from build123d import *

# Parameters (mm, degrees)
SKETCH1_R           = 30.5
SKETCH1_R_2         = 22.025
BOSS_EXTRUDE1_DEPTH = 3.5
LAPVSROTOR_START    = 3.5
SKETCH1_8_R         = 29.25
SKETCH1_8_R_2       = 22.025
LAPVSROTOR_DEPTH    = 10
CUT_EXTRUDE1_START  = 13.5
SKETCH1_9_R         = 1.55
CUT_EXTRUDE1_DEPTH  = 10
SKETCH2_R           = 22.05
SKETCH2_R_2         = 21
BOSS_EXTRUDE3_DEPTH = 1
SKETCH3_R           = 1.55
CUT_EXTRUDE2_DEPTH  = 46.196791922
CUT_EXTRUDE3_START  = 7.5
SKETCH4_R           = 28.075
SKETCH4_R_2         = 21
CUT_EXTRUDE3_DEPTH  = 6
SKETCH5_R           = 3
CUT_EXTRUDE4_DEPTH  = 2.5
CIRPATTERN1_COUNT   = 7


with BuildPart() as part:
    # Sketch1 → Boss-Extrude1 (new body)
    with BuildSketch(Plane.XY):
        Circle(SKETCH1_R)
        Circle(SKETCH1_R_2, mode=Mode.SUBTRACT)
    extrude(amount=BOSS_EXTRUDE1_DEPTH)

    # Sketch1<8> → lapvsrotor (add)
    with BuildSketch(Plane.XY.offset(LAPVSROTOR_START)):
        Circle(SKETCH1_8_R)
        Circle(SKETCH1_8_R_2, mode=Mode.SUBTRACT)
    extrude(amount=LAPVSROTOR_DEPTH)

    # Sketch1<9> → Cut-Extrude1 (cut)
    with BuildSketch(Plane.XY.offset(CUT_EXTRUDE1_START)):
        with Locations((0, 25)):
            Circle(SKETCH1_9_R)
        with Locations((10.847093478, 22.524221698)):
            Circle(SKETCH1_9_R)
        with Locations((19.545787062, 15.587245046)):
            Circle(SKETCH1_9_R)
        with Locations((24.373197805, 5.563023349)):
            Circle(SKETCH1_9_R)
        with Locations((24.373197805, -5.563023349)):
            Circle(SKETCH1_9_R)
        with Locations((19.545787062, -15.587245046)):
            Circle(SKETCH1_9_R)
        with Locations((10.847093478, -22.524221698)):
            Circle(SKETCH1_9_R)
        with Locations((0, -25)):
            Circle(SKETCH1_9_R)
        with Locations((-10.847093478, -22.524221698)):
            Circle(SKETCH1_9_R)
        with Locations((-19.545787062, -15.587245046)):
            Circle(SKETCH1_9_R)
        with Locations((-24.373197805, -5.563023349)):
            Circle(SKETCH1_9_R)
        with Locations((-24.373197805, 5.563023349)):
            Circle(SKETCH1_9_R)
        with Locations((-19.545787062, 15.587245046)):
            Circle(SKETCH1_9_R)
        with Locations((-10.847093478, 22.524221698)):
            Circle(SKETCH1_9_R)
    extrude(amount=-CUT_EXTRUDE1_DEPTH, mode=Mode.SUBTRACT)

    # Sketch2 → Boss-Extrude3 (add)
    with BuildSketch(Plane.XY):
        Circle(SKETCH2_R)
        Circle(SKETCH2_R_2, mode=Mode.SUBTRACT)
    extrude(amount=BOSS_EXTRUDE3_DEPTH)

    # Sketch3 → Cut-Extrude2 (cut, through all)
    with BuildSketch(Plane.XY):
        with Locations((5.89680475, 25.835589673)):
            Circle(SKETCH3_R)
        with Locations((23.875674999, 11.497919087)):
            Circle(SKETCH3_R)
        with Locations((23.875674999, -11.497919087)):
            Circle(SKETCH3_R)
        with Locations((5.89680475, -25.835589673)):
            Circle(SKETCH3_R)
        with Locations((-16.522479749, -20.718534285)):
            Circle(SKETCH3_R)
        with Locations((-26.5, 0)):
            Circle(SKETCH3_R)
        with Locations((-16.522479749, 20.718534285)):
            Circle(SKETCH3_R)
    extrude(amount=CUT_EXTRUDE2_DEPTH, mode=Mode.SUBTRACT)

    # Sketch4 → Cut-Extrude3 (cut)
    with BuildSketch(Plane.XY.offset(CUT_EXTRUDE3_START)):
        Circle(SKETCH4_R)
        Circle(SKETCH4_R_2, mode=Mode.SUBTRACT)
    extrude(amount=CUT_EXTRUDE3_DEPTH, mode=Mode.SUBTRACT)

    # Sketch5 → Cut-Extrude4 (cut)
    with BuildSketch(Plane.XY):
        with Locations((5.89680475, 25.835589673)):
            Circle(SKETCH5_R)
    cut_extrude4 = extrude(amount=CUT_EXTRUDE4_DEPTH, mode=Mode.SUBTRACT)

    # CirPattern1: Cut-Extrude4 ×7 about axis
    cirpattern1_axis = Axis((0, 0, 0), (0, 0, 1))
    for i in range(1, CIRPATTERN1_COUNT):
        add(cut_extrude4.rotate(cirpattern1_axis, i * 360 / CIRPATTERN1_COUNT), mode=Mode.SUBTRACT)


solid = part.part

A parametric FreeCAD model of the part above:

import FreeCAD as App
import Part
import Sketcher

V = App.Vector
Q = App.Units.Quantity

doc = App.newDocument("Part")
params = doc.addObject("Spreadsheet::Sheet", "Params")
for row, (alias, value) in enumerate([
    ("sketch1_diameter", "61 mm"),
    ("sketch1_diameter2", "44.05 mm"),
    ("pad1_length", "3.5 mm"),
    ("sketch2_diameter", "58.5 mm"),
    ("sketch2_diameter2", "44.05 mm"),
    ("pad2_length", "10 mm"),
    ("sketch3_diameter", "3.1 mm"),
    ("pocket1_length", "10 mm"),
    ("sketch4_diameter", "42 mm"),
    ("sketch4_diameter2", "44.1 mm"),
    ("pad3_length", "1 mm"),
    ("sketch5_diameter", "3.1 mm"),
    ("sketch6_diameter", "42 mm"),
    ("sketch6_diameter2", "56.15 mm"),
    ("pocket3_length", "6 mm"),
    ("sketch7_diameter", "6 mm"),
    ("pocket4_length", "2.5 mm"),
], start=1):
    params.set(f"A{row}", alias)
    params.set(f"B{row}", "=" + value)
    params.setAlias(f"B{row}", alias)

body = doc.addObject("PartDesign::Body", "Body")

sketch1 = body.newObject("Sketcher::SketchObject", "Sketch")
sketch1.AttachmentSupport = (doc.getObject("XY_Plane"), [""])
sketch1.MapMode = "FlatFace"
sketch1.addGeometry(Part.Circle(V(0, 0, 0), V(0, 0, 1), 30), False)
sketch1.addGeometry(Part.Circle(V(0, 0, 0), V(0, 0, 1), 22), False)
sketch1.addConstraint(Sketcher.Constraint("Coincident", 0, 3, -1, 1))
sketch1.addConstraint(Sketcher.Constraint("Coincident", 1, 3, -1, 1))
sketch1.addConstraint(Sketcher.Constraint("Diameter", 0, Q("61 mm")))
sketch1.addConstraint(Sketcher.Constraint("Diameter", 1, Q("44.05 mm")))
sketch1.setExpression("Constraints[2]", "Params.sketch1_diameter")
sketch1.setExpression("Constraints[3]", "Params.sketch1_diameter2")
pad1 = body.newObject("PartDesign::Pad", "Pad")
pad1.Profile = sketch1
pad1.setExpression("Length", "Params.pad1_length")

sketch2 = body.newObject("Sketcher::SketchObject", "Sketch001")
sketch2.AttachmentSupport = (doc.getObject("XY_Plane"), [""])
sketch2.MapMode = "FlatFace"
sketch2.AttachmentOffset = App.Placement(V(0, 0, 3.5), App.Rotation())
sketch2.addGeometry(Part.Circle(V(0, 0, 0), V(0, 0, 1), 29), False)
sketch2.addGeometry(Part.Circle(V(0, 0, 0), V(0, 0, 1), 22), False)
sketch2.addConstraint(Sketcher.Constraint("Coincident", 0, 3, -1, 1))
sketch2.addConstraint(Sketcher.Constraint("Coincident", 1, 3, -1, 1))
sketch2.addConstraint(Sketcher.Constraint("Diameter", 0, Q("58.5 mm")))
sketch2.addConstraint(Sketcher.Constraint("Diameter", 1, Q("44.05 mm")))
sketch2.setExpression("Constraints[2]", "Params.sketch2_diameter")
sketch2.setExpression("Constraints[3]", "Params.sketch2_diameter2")
pad2 = body.newObject("PartDesign::Pad", "Pad001")
pad2.Profile = sketch2
pad2.setExpression("Length", "Params.pad2_length")

sketch3 = body.newObject("Sketcher::SketchObject", "Sketch002")
sketch3.AttachmentSupport = (doc.getObject("XY_Plane"), [""])
sketch3.MapMode = "FlatFace"
sketch3.AttachmentOffset = App.Placement(V(0, 0, 13.5), App.Rotation())
sketch3.addGeometry(Part.Circle(V(0, 25, 0), V(0, 0, 1), 1.6), False)
sketch3.addGeometry(Part.Circle(V(10.8, 22.5, 0), V(0, 0, 1), 1.6), False)
sketch3.addGeometry(Part.Circle(V(19.5, 15.6, 0), V(0, 0, 1), 1.6), False)
sketch3.addGeometry(Part.Circle(V(24.4, 5.6, 0), V(0, 0, 1), 1.6), False)
sketch3.addGeometry(Part.Circle(V(24.4, -5.6, 0), V(0, 0, 1), 1.6), False)
sketch3.addGeometry(Part.Circle(V(19.5, -15.6, 0), V(0, 0, 1), 1.6), False)
sketch3.addGeometry(Part.Circle(V(10.8, -22.5, 0), V(0, 0, 1), 1.6), False)
sketch3.addGeometry(Part.Circle(V(0, -25, 0), V(0, 0, 1), 1.6), False)
sketch3.addGeometry(Part.Circle(V(-10.8, -22.5, 0), V(0, 0, 1), 1.6), False)
sketch3.addGeometry(Part.Circle(V(-19.5, -15.6, 0), V(0, 0, 1), 1.6), False)
sketch3.addGeometry(Part.Circle(V(-24.4, -5.6, 0), V(0, 0, 1), 1.6), False)
sketch3.addGeometry(Part.Circle(V(-24.4, 5.6, 0), V(0, 0, 1), 1.6), False)
sketch3.addGeometry(Part.Circle(V(-19.5, 15.6, 0), V(0, 0, 1), 1.6), False)
sketch3.addGeometry(Part.Circle(V(-10.8, 22.5, 0), V(0, 0, 1), 1.6), False)
sketch3.addConstraint(Sketcher.Constraint("Equal", 0, 1))
sketch3.addConstraint(Sketcher.Constraint("Equal", 1, 2))
sketch3.addConstraint(Sketcher.Constraint("Equal", 2, 3))
sketch3.addConstraint(Sketcher.Constraint("Equal", 3, 4))
sketch3.addConstraint(Sketcher.Constraint("Equal", 4, 5))
sketch3.addConstraint(Sketcher.Constraint("Equal", 5, 6))
sketch3.addConstraint(Sketcher.Constraint("Equal", 6, 7))
sketch3.addConstraint(Sketcher.Constraint("Equal", 7, 8))
sketch3.addConstraint(Sketcher.Constraint("Equal", 8, 9))
sketch3.addConstraint(Sketcher.Constraint("Equal", 9, 10))
sketch3.addConstraint(Sketcher.Constraint("Equal", 10, 11))
sketch3.addConstraint(Sketcher.Constraint("Equal", 11, 12))
sketch3.addConstraint(Sketcher.Constraint("Equal", 12, 13))
sketch3.addConstraint(Sketcher.Constraint("Symmetric", 0, 3, 7, 3, -1, 1))
sketch3.addConstraint(Sketcher.Constraint("Symmetric", 1, 3, 8, 3, -1, 1))
sketch3.addConstraint(Sketcher.Constraint("Symmetric", 2, 3, 9, 3, -1, 1))
sketch3.addConstraint(Sketcher.Constraint("Symmetric", 3, 3, 10, 3, -1, 1))
sketch3.addConstraint(Sketcher.Constraint("Symmetric", 4, 3, 11, 3, -1, 1))
sketch3.addConstraint(Sketcher.Constraint("Symmetric", 5, 3, 12, 3, -1, 1))
sketch3.addConstraint(Sketcher.Constraint("Symmetric", 6, 3, 13, 3, -1, 1))
sketch3.addConstraint(Sketcher.Constraint("Symmetric", 6, 3, 8, 3, -2))
sketch3.addConstraint(Sketcher.Constraint("Symmetric", 5, 3, 9, 3, -2))
sketch3.addConstraint(Sketcher.Constraint("Symmetric", 4, 3, 10, 3, -2))
sketch3.addConstraint(Sketcher.Constraint("PointOnObject", 0, 3, -2))
sketch3.addConstraint(Sketcher.Constraint("Diameter", 0, Q("3.1 mm")))
sketch3.addConstraint(Sketcher.Constraint("DistanceY", -1, 1, 0, 3, Q("25 mm")))
sketch3.addConstraint(Sketcher.Constraint("DistanceY", 3, 3, 1, 3, Q("16.961198 mm")))
sketch3.addConstraint(Sketcher.Constraint("DistanceY", -1, 1, 1, 3, Q("22.524222 mm")))
sketch3.addConstraint(Sketcher.Constraint("DistanceX", 2, 3, 3, 3, Q("4.827411 mm")))
sketch3.addConstraint(Sketcher.Constraint("DistanceY", 3, 3, 2, 3, Q("10.024222 mm")))
sketch3.addConstraint(Sketcher.Constraint("DistanceX", 8, 3, 5, 3, Q("30.392881 mm")))
sketch3.addConstraint(Sketcher.Constraint("DistanceX", -1, 1, 1, 3, Q("10.847093 mm")))
sketch3.setExpression("Constraints[24]", "Params.sketch3_diameter")
pocket1 = body.newObject("PartDesign::Pocket", "Pocket")
pocket1.Profile = sketch3
pocket1.setExpression("Length", "Params.pocket1_length")

sketch4 = body.newObject("Sketcher::SketchObject", "Sketch003")
sketch4.AttachmentSupport = (doc.getObject("XY_Plane"), [""])
sketch4.MapMode = "FlatFace"
sketch4.addGeometry(Part.Circle(V(0, 0, 0), V(0, 0, 1), 22), False)
sketch4.addGeometry(Part.Circle(V(0, 0, 0), V(0, 0, 1), 21), False)
sketch4.addConstraint(Sketcher.Constraint("Coincident", 0, 3, -1, 1))
sketch4.addConstraint(Sketcher.Constraint("Coincident", 1, 3, -1, 1))
sketch4.addConstraint(Sketcher.Constraint("Diameter", 1, Q("42 mm")))
sketch4.addConstraint(Sketcher.Constraint("Diameter", 0, Q("44.1 mm")))
sketch4.setExpression("Constraints[2]", "Params.sketch4_diameter")
sketch4.setExpression("Constraints[3]", "Params.sketch4_diameter2")
pad3 = body.newObject("PartDesign::Pad", "Pad002")
pad3.Profile = sketch4
pad3.setExpression("Length", "Params.pad3_length")

sketch5 = body.newObject("Sketcher::SketchObject", "Sketch004")
sketch5.AttachmentSupport = (doc.getObject("XY_Plane"), [""])
sketch5.MapMode = "FlatFace"
sketch5.addGeometry(Part.Circle(V(5.9, 25.8, 0), V(0, 0, 1), 1.6), False)
sketch5.addGeometry(Part.Circle(V(23.9, 11.5, 0), V(0, 0, 1), 1.6), False)
sketch5.addGeometry(Part.Circle(V(23.9, -11.5, 0), V(0, 0, 1), 1.6), False)
sketch5.addGeometry(Part.Circle(V(5.9, -25.8, 0), V(0, 0, 1), 1.6), False)
sketch5.addGeometry(Part.Circle(V(-16.5, -20.7, 0), V(0, 0, 1), 1.6), False)
sketch5.addGeometry(Part.Circle(V(-26.5, 0, 0), V(0, 0, 1), 1.6), False)
sketch5.addGeometry(Part.Circle(V(-16.5, 20.7, 0), V(0, 0, 1), 1.6), False)
sketch5.addConstraint(Sketcher.Constraint("Equal", 0, 1))
sketch5.addConstraint(Sketcher.Constraint("Equal", 1, 2))
sketch5.addConstraint(Sketcher.Constraint("Equal", 2, 3))
sketch5.addConstraint(Sketcher.Constraint("Equal", 3, 4))
sketch5.addConstraint(Sketcher.Constraint("Equal", 4, 5))
sketch5.addConstraint(Sketcher.Constraint("Equal", 5, 6))
sketch5.addConstraint(Sketcher.Constraint("Symmetric", 1, 3, 2, 3, -1))
sketch5.addConstraint(Sketcher.Constraint("Symmetric", 0, 3, 3, 3, -1))
sketch5.addConstraint(Sketcher.Constraint("Symmetric", 4, 3, 6, 3, -1))
sketch5.addConstraint(Sketcher.Constraint("PointOnObject", 5, 3, -1))
sketch5.addConstraint(Sketcher.Constraint("Diameter", 0, Q("3.1 mm")))
sketch5.addConstraint(Sketcher.Constraint("DistanceX", 5, 3, -1, 1, Q("26.5 mm")))
sketch5.addConstraint(Sketcher.Constraint("DistanceY", -1, 1, 0, 3, Q("25.83559 mm")))
sketch5.addConstraint(Sketcher.Constraint("DistanceY", -1, 1, 1, 3, Q("11.497919 mm")))
sketch5.addConstraint(Sketcher.Constraint("DistanceX", 4, 3, -1, 1, Q("16.52248 mm")))
sketch5.addConstraint(Sketcher.Constraint("DistanceX", 0, 3, 1, 3, Q("17.97887 mm")))
sketch5.addConstraint(Sketcher.Constraint("DistanceY", 4, 3, 6, 3, Q("41.437069 mm")))
sketch5.addConstraint(Sketcher.Constraint("DistanceX", -1, 1, 0, 3, Q("5.896805 mm")))
sketch5.setExpression("Constraints[10]", "Params.sketch5_diameter")
pocket2 = body.newObject("PartDesign::Pocket", "Pocket001")
pocket2.Profile = sketch5
pocket2.Type = "ThroughAll"
pocket2.Reversed = True

sketch6 = body.newObject("Sketcher::SketchObject", "Sketch005")
sketch6.AttachmentSupport = (doc.getObject("XY_Plane"), [""])
sketch6.MapMode = "FlatFace"
sketch6.AttachmentOffset = App.Placement(V(0, 0, 7.5), App.Rotation())
sketch6.addGeometry(Part.Circle(V(0, 0, 0), V(0, 0, 1), 28), False)
sketch6.addGeometry(Part.Circle(V(0, 0, 0), V(0, 0, 1), 21), False)
sketch6.addConstraint(Sketcher.Constraint("Coincident", 0, 3, -1, 1))
sketch6.addConstraint(Sketcher.Constraint("Coincident", 1, 3, -1, 1))
sketch6.addConstraint(Sketcher.Constraint("Diameter", 1, Q("42 mm")))
sketch6.addConstraint(Sketcher.Constraint("Diameter", 0, Q("56.15 mm")))
sketch6.setExpression("Constraints[2]", "Params.sketch6_diameter")
sketch6.setExpression("Constraints[3]", "Params.sketch6_diameter2")
pocket3 = body.newObject("PartDesign::Pocket", "Pocket002")
pocket3.Profile = sketch6
pocket3.setExpression("Length", "Params.pocket3_length")
pocket3.Reversed = True

sketch7 = body.newObject("Sketcher::SketchObject", "Sketch006")
sketch7.AttachmentSupport = (doc.getObject("XY_Plane"), [""])
sketch7.MapMode = "FlatFace"
sketch7.addGeometry(Part.Circle(V(5.9, 25.8, 0), V(0, 0, 1), 3), False)
sketch7.addConstraint(Sketcher.Constraint("Diameter", 0, Q("6 mm")))
sketch7.addConstraint(Sketcher.Constraint("DistanceY", -1, 1, 0, 3, Q("25.83559 mm")))
sketch7.addConstraint(Sketcher.Constraint("DistanceX", -1, 1, 0, 3, Q("5.896805 mm")))
sketch7.setExpression("Constraints[0]", "Params.sketch7_diameter")
pocket4 = body.newObject("PartDesign::Pocket", "Pocket003")
pocket4.Profile = sketch7
pocket4.setExpression("Length", "Params.pocket4_length")
pocket4.Reversed = True
doc.recompute()

polarpattern = body.newObject("PartDesign::PolarPattern", "PolarPattern")
polarpattern.Originals = [pocket4]
polarpattern.Axis = (doc.getObject("Z_Axis"), [""])
polarpattern.Angle = 360
polarpattern.Occurrences = 7
body.Tip = polarpattern

doc.recompute()
